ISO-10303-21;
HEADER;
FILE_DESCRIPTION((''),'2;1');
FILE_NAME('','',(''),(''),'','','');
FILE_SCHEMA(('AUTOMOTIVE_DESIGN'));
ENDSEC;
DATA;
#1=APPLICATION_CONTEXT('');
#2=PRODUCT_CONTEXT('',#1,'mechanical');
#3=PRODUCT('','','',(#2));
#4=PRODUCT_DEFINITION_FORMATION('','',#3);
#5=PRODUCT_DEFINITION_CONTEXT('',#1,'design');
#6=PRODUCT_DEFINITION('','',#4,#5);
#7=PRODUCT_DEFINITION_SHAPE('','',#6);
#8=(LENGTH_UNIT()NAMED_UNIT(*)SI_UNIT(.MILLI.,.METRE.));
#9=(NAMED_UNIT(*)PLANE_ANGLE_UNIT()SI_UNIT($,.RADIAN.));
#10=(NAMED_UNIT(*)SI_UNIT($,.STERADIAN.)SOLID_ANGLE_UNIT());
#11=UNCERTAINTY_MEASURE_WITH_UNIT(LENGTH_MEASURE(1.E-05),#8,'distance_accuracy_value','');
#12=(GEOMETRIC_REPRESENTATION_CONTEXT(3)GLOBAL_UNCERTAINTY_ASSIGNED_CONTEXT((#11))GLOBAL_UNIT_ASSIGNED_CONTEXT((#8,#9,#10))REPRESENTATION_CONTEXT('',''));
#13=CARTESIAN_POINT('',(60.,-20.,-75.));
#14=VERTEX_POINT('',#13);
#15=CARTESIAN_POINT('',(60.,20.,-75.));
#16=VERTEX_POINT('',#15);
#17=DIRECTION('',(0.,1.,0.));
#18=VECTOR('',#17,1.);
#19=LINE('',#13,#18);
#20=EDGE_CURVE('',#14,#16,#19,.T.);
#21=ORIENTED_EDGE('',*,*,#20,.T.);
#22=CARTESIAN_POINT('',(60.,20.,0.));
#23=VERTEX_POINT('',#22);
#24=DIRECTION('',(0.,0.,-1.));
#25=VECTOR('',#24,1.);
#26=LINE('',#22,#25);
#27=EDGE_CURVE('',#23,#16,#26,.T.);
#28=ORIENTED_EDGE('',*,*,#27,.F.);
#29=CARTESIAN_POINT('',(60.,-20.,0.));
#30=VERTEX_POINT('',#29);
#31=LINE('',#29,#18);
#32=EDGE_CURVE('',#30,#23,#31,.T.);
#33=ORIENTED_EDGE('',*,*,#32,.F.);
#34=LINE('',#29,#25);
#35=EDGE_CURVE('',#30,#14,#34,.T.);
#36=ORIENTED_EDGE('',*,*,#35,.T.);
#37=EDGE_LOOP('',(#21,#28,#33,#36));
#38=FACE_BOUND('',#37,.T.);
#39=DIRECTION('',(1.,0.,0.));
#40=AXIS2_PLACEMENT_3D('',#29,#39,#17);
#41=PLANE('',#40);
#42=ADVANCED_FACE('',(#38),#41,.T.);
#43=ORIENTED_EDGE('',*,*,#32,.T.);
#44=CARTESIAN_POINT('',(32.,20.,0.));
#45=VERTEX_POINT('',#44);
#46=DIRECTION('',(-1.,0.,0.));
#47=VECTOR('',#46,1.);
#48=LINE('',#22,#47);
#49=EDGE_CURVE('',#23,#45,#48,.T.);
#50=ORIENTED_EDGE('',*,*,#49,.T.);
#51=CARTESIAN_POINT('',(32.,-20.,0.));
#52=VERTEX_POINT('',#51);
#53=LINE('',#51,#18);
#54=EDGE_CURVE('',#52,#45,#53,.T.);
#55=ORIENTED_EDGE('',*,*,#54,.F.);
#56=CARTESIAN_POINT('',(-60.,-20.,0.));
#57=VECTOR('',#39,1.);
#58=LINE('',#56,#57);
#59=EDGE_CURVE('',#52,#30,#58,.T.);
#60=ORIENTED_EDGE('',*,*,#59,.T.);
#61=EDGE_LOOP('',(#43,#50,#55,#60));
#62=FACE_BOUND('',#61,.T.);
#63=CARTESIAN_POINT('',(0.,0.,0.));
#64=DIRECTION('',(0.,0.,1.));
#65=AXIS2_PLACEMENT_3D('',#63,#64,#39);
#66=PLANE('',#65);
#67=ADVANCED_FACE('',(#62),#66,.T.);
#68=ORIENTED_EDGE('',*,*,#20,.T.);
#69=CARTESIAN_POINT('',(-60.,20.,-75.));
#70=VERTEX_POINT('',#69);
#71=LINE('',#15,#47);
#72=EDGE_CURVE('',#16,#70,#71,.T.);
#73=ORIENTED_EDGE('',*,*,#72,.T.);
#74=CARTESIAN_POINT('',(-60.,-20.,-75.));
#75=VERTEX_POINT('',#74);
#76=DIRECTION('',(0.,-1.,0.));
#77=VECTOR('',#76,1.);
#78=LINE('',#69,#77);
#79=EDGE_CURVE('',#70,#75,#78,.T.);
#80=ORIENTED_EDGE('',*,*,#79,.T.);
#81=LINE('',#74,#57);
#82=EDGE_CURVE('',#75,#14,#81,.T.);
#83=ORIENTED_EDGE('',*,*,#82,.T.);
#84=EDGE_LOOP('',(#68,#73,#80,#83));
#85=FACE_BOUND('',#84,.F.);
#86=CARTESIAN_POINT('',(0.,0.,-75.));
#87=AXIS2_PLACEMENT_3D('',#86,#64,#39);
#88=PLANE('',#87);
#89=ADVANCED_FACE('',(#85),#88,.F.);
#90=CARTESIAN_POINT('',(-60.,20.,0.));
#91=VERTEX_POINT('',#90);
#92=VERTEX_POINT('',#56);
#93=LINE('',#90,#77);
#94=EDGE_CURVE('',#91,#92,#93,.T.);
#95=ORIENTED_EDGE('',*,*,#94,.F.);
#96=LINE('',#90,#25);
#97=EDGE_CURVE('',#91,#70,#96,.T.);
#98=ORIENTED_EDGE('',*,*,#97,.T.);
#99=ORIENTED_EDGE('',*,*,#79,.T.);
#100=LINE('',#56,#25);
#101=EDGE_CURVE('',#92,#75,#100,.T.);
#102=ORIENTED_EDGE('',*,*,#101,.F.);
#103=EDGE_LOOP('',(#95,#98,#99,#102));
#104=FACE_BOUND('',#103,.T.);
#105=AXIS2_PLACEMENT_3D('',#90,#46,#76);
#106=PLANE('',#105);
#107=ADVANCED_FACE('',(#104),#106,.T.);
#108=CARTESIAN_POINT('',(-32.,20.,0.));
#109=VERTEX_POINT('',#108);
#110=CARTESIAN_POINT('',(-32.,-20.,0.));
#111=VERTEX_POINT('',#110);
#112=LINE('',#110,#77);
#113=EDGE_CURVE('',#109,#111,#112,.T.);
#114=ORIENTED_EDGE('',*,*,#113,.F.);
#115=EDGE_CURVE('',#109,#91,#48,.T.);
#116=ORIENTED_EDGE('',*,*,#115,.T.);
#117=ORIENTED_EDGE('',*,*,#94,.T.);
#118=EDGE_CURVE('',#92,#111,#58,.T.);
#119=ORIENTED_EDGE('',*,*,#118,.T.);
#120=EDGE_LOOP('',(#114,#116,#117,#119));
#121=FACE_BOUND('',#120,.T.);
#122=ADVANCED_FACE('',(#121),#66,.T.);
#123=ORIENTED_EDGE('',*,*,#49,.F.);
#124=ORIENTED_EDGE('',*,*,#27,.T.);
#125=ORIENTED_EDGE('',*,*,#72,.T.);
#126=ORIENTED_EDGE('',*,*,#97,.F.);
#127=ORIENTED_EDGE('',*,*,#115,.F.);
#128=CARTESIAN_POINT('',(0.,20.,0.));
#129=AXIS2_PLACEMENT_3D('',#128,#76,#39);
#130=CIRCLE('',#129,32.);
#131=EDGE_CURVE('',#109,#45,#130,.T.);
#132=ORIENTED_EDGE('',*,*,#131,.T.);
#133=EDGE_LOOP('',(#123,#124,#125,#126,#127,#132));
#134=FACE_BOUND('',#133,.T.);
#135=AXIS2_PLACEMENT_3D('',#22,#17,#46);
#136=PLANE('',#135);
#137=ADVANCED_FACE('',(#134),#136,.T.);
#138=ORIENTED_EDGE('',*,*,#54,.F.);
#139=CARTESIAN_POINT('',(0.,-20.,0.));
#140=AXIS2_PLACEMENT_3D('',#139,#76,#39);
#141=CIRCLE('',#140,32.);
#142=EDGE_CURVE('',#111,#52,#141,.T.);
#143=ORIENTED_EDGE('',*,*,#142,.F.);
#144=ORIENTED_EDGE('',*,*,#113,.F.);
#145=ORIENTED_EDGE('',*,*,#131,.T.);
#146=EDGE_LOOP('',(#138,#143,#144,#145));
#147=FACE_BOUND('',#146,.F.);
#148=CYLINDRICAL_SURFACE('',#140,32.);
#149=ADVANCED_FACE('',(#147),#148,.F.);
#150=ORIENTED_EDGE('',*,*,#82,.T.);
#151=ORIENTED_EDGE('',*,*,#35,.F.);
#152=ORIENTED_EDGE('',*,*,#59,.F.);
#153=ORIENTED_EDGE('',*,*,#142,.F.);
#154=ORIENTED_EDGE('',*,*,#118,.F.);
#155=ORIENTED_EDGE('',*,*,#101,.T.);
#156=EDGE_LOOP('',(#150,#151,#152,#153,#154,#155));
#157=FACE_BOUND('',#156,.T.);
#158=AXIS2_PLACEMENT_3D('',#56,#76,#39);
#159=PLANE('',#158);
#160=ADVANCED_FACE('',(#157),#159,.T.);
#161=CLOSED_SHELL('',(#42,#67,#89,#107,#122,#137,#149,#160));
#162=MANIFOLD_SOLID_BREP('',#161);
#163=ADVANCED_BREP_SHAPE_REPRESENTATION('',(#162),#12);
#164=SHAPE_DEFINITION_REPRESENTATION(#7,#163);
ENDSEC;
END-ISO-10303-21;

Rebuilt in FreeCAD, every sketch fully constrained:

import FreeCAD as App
import Part
import Sketcher

V = App.Vector
Q = App.Units.Quantity

doc = App.newDocument("Part")
body = doc.addObject("PartDesign::Body", "Body")

# Sketch on XY plane
sketch1 = body.newObject("Sketcher::SketchObject", "Sketch")
sketch1.AttachmentSupport = (doc.getObject("XY_Plane"), [""])
sketch1.MapMode = "FlatFace"
sketch1.addGeometry([
    Part.LineSegment(V(-60, 20, 0), V(-60, -20, 0)),
    Part.LineSegment(V(-60, -20, 0), V(60, -20, 0)),
    Part.LineSegment(V(60, -20, 0), V(60, 20, 0)),
    Part.LineSegment(V(60, 20, 0), V(-60, 20, 0)),
], False)
sketch1.addConstraint([
    Sketcher.Constraint("Coincident", 0, 2, 1, 1),
    Sketcher.Constraint("Coincident", 1, 2, 2, 1),
    Sketcher.Constraint("Coincident", 2, 2, 3, 1),
    Sketcher.Constraint("Coincident", 3, 2, 0, 1),
    Sketcher.Constraint("Vertical", 0),
    Sketcher.Constraint("Horizontal", 1),
    Sketcher.Constraint("Vertical", 2),
    Sketcher.Constraint("Horizontal", 3),
    Sketcher.Constraint("Symmetric", 0, 2, 2, 2, -1, 1),
    Sketcher.Constraint("DistanceX", 1, 1, 1, 2, Q("120 mm")),
    Sketcher.Constraint("DistanceY", 0, 2, 0, 1, Q("40 mm")),
])
pad1 = body.newObject("PartDesign::Pad", "Pad")
pad1.Profile = sketch1
pad1.Length = 75
pad1.Reversed = True

# Sketch on XZ plane
sketch2 = body.newObject("Sketcher::SketchObject", "Sketch001")
sketch2.AttachmentSupport = (doc.getObject("XZ_Plane"), [""])
sketch2.MapMode = "FlatFace"
sketch2.AttachmentOffset = App.Placement(V(0, 0, 20), App.Rotation())
sketch2.addGeometry(Part.Circle(V(0, 0, 0), V(0, 0, 1), 32), False)
sketch2.addConstraint([
    Sketcher.Constraint("Coincident", 0, 3, -1, 1),
    Sketcher.Constraint("Diameter", 0, Q("64 mm")),
])
pocket1 = body.newObject("PartDesign::Pocket", "Pocket")
pocket1.Profile = sketch2
pocket1.Length = 40

doc.recompute()
